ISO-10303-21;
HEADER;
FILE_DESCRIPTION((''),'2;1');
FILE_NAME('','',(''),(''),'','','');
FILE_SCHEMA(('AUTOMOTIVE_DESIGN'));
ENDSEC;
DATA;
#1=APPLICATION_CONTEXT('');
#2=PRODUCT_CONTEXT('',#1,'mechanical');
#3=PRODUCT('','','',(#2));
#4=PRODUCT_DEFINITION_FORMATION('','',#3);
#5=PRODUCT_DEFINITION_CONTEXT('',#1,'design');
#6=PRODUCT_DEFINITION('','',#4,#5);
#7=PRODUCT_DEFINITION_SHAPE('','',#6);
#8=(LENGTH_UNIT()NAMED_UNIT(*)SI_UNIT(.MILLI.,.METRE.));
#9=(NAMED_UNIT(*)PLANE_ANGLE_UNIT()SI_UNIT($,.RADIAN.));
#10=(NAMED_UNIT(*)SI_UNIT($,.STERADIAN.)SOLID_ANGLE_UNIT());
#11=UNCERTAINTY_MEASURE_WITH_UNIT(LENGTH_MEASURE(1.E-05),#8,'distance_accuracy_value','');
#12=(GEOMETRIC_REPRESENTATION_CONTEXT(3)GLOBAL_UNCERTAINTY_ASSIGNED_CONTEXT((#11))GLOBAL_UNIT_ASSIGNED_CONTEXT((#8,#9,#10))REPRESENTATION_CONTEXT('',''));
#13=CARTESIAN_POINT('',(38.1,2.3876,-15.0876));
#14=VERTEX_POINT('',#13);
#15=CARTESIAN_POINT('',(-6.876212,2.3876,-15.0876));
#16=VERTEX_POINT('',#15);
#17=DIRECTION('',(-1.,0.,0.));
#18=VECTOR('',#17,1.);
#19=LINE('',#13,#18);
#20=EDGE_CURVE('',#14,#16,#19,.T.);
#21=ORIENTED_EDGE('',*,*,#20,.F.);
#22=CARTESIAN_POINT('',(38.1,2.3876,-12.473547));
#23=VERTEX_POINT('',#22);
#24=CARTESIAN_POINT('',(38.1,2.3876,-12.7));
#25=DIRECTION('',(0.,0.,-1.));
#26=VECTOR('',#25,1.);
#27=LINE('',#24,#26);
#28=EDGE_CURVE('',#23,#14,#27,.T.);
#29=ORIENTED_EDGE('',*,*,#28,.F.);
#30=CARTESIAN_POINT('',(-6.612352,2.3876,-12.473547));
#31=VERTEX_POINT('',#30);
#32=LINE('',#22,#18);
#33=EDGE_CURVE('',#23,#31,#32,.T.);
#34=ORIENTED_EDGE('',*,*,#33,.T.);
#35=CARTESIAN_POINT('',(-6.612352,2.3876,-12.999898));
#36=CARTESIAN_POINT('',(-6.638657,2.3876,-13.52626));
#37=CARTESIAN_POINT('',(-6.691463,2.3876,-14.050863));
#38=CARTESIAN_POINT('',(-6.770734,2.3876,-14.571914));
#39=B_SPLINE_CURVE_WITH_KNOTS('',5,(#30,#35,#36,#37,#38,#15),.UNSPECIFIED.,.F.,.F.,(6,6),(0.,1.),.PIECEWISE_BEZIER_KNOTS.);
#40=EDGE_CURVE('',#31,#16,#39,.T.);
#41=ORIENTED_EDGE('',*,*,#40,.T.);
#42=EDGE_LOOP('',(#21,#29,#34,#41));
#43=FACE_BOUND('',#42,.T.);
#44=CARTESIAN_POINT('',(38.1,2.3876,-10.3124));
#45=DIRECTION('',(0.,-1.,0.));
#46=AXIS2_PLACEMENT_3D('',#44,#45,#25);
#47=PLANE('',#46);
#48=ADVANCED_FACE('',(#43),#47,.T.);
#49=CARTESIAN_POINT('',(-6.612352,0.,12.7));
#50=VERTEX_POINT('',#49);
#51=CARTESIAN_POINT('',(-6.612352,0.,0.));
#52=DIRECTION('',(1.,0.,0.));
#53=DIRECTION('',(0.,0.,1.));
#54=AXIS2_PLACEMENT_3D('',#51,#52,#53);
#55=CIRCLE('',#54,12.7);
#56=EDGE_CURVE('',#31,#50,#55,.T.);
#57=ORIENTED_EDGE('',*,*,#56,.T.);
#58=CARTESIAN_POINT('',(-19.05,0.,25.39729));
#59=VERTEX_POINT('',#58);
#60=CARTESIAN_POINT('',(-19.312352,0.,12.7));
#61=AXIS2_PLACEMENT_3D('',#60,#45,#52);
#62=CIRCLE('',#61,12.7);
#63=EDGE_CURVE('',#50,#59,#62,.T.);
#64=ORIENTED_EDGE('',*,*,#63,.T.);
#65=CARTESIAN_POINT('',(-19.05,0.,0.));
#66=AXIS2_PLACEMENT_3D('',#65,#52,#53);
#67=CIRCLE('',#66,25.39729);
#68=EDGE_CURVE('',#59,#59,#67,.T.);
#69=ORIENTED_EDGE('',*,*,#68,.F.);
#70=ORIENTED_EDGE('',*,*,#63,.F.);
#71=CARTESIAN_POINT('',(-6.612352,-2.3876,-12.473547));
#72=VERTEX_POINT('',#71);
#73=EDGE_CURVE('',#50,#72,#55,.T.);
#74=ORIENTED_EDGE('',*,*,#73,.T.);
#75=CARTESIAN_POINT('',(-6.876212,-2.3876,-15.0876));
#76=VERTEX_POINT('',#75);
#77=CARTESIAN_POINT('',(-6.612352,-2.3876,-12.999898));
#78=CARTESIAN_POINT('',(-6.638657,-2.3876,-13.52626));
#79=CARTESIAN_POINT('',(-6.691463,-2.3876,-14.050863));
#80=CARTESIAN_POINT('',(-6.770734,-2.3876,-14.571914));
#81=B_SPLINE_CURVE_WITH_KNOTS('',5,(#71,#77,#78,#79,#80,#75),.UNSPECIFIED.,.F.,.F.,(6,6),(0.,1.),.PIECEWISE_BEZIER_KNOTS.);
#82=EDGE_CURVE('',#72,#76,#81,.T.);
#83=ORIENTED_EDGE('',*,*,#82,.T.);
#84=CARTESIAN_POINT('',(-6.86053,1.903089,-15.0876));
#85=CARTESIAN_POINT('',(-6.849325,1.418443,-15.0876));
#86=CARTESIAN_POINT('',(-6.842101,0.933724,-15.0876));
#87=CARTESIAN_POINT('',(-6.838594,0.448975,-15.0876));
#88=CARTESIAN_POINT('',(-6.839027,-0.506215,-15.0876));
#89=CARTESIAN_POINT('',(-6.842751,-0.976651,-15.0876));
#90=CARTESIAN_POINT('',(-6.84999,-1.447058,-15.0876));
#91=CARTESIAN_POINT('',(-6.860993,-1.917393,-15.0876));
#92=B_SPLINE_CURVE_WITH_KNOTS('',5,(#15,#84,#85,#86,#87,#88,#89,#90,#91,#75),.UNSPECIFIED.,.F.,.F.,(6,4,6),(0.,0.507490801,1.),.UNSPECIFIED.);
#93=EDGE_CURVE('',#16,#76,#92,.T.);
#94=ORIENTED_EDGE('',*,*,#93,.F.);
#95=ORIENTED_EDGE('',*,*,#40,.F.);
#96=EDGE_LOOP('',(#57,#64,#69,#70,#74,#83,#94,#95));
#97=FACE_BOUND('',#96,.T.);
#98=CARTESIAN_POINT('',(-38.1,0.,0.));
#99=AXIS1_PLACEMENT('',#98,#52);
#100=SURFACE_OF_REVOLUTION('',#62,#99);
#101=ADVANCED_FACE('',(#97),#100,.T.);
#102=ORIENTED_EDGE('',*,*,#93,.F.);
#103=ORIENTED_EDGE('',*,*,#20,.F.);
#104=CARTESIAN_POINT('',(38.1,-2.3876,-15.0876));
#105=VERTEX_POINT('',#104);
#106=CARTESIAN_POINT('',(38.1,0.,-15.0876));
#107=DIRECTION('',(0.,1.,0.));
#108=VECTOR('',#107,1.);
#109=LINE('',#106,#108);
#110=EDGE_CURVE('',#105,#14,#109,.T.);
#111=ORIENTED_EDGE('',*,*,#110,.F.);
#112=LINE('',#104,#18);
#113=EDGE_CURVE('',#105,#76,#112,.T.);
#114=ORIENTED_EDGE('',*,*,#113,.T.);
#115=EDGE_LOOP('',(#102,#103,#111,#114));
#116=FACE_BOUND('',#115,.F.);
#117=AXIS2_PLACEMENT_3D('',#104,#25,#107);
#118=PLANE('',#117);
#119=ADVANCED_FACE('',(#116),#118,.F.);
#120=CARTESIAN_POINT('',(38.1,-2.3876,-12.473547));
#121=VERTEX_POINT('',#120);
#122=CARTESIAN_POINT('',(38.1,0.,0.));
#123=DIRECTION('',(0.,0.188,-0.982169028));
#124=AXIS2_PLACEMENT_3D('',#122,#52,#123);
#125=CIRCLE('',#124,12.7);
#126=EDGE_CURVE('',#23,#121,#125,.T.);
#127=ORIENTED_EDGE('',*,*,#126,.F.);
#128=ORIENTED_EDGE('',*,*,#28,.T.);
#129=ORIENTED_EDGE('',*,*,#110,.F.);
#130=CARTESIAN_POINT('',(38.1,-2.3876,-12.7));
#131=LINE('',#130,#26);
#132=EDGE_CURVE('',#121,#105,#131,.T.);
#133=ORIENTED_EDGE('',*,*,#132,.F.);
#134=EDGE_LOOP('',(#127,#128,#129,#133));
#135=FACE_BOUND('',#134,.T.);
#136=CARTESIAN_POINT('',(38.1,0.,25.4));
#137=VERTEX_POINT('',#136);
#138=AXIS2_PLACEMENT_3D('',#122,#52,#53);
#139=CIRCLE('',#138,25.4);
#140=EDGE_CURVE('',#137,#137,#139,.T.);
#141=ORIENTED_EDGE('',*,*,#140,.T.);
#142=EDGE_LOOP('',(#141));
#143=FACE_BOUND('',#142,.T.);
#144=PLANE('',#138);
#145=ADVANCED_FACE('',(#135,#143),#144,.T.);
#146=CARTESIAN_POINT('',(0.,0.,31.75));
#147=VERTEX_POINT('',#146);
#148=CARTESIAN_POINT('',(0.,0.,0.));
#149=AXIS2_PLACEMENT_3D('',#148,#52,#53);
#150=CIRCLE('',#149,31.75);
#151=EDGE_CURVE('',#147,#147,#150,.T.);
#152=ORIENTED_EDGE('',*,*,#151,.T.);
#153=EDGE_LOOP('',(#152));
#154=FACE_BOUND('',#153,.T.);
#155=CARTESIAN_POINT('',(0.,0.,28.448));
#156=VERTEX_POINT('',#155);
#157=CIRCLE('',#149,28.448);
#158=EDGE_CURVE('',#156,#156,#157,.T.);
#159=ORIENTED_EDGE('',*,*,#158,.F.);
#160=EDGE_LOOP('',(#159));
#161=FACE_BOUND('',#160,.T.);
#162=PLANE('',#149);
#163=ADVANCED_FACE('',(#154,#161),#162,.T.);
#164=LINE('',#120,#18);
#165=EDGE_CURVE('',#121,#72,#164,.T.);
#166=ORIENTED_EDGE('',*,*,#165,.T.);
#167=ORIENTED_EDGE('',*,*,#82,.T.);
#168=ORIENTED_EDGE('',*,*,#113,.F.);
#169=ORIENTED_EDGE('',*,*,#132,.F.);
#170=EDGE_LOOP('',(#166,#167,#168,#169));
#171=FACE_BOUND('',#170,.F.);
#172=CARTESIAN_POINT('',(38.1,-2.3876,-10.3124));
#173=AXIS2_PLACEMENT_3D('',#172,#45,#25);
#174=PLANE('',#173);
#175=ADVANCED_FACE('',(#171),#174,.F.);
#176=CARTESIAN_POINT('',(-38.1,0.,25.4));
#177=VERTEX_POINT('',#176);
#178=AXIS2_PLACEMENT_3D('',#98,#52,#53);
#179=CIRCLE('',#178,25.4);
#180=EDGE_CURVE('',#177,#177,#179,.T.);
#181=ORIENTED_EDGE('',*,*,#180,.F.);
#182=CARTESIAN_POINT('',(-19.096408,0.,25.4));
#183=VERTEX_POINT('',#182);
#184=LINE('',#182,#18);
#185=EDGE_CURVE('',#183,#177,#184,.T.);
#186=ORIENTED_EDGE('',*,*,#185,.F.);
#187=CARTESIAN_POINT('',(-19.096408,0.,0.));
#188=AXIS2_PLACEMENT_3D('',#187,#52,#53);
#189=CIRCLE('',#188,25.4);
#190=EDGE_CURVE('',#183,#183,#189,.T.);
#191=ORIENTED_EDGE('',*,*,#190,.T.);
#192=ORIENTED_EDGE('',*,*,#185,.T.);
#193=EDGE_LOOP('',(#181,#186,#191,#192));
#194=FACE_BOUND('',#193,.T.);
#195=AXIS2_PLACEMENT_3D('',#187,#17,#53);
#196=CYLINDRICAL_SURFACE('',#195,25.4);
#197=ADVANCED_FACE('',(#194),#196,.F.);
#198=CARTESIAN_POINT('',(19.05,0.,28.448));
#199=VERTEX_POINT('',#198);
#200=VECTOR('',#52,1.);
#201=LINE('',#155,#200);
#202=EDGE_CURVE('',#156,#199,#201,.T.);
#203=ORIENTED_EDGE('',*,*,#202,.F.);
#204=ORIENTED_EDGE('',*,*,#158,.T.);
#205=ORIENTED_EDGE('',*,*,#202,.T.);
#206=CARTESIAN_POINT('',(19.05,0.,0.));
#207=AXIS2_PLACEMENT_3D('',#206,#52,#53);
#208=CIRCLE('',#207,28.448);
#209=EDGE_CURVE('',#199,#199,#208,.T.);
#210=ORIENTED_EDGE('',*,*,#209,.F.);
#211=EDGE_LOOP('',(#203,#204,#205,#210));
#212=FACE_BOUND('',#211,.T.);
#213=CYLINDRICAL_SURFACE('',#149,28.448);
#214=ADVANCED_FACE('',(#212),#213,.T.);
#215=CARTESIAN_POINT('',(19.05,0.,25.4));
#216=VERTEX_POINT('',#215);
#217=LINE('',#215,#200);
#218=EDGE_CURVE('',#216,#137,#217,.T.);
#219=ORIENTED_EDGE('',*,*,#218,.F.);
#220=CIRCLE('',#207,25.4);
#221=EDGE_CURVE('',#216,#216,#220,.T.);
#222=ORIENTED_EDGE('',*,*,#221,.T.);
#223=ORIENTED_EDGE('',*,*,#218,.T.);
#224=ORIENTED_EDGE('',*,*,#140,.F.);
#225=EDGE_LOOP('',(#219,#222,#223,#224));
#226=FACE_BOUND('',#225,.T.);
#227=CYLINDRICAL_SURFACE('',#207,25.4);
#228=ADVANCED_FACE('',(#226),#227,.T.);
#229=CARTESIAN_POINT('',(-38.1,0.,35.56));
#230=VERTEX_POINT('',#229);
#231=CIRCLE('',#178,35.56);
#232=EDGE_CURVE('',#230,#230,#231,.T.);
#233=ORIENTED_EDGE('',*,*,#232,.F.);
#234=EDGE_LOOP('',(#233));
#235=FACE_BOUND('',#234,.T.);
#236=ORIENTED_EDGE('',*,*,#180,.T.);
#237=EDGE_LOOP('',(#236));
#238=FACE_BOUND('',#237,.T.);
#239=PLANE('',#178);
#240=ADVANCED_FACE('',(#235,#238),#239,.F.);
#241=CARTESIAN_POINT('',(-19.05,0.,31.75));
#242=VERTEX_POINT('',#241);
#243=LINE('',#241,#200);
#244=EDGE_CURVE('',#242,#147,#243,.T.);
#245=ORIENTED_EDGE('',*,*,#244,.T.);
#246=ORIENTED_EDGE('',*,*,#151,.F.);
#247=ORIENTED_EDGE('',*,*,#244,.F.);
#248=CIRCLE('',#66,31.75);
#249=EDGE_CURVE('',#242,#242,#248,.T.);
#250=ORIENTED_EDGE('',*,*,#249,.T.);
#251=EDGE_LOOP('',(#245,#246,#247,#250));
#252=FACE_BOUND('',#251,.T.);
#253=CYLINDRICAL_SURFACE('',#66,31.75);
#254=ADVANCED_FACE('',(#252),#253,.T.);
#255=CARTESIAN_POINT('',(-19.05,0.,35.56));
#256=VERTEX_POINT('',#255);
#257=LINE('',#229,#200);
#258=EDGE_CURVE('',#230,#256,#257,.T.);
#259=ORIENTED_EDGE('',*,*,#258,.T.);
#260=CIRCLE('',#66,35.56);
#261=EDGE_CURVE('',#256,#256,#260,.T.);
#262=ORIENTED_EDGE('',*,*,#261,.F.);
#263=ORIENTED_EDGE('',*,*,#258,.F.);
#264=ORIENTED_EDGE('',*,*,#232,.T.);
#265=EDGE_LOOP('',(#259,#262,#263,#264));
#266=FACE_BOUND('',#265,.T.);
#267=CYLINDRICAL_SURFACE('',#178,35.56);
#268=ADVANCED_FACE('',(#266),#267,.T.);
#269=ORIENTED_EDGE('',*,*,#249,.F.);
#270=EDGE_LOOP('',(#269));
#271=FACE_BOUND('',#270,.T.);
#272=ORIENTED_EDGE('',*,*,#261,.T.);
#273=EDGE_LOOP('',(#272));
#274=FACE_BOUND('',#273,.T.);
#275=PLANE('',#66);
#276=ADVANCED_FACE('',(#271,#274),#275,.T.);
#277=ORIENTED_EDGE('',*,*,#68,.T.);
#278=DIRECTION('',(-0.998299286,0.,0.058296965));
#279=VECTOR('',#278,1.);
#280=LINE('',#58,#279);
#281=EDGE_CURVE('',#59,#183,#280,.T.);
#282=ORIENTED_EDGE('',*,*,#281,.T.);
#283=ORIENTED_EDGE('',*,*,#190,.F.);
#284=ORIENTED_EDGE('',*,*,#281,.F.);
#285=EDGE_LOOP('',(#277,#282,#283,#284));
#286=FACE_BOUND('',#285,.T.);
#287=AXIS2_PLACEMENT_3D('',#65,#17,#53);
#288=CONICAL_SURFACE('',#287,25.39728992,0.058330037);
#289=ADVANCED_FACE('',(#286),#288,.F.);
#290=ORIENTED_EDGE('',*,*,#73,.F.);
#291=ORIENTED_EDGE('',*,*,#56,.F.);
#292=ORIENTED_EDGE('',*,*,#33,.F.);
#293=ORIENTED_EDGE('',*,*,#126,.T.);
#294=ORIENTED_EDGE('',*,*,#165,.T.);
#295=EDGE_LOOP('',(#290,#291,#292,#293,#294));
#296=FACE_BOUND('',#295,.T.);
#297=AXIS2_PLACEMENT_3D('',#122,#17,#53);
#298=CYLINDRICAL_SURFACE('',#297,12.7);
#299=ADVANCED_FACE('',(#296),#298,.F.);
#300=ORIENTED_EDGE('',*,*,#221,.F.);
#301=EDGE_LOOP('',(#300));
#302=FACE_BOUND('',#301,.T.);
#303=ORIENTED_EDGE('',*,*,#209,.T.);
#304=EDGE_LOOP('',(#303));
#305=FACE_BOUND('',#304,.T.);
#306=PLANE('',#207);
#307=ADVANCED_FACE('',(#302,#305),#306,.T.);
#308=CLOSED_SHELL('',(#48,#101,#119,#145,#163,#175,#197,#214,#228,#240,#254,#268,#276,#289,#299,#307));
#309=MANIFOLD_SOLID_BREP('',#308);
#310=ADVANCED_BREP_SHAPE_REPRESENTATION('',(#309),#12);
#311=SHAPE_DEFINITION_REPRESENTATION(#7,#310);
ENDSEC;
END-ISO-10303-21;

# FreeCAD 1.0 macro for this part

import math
import FreeCAD as App
import Part
import Sketcher
Q = App.Units.Quantity

doc = App.newDocument("Part")
body = doc.addObject("PartDesign::Body", "Body")

sketch1 = doc.addObject("Sketcher::SketchObject", "Sketch")
body.addObject(sketch1)
sketch1.AttachmentSupport = (doc.XY_Plane, [""])
sketch1.MapMode = "FlatFace"
sketch1.addGeometry(Part.LineSegment(App.Vector(-19.05, 35.56, 0), App.Vector(-38.1, 35.56, 0)), False)
sketch1.addGeometry(Part.LineSegment(App.Vector(-38.1, 35.56, 0), App.Vector(-38.1, 25.4, 0)), False)
sketch1.addGeometry(Part.LineSegment(App.Vector(-38.1, 25.4, 0), App.Vector(-19.096408, 25.4, 0)), False)
sketch1.addGeometry(Part.LineSegment(App.Vector(-19.096408, 25.4, 0), App.Vector(-19.05, 25.39729, 0)), False)
sketch1.addGeometry(Part.ArcOfCircle(Part.Circle(App.Vector(-19.312352, 12.7, 0), App.Vector(0, 0, 1), 12.7), math.radians(0), math.radians(88.816319)), False)
sketch1.addGeometry(Part.LineSegment(App.Vector(-6.612352, 12.7, 0), App.Vector(38.1, 12.7, 0)), False)
sketch1.addGeometry(Part.LineSegment(App.Vector(38.1, 12.7, 0), App.Vector(38.1, 25.4, 0)), False)
sketch1.addGeometry(Part.LineSegment(App.Vector(38.1, 25.4, 0), App.Vector(19.05, 25.4, 0)), False)
sketch1.addGeometry(Part.LineSegment(App.Vector(19.05, 25.4, 0), App.Vector(19.05, 28.448, 0)), False)
sketch1.addGeometry(Part.LineSegment(App.Vector(19.05, 28.448, 0), App.Vector(0, 28.448, 0)), False)
sketch1.addGeometry(Part.LineSegment(App.Vector(0, 28.448, 0), App.Vector(0, 31.75, 0)), False)
sketch1.addGeometry(Part.LineSegment(App.Vector(0, 31.75, 0), App.Vector(-19.05, 31.75, 0)), False)
sketch1.addGeometry(Part.LineSegment(App.Vector(-19.05, 31.75, 0), App.Vector(-19.05, 35.56, 0)), False)
sketch1.addConstraint(Sketcher.Constraint("Coincident", 0, 2, 1, 1))
sketch1.addConstraint(Sketcher.Constraint("Coincident", 1, 2, 2, 1))
sketch1.addConstraint(Sketcher.Constraint("Coincident", 2, 2, 3, 1))
sketch1.addConstraint(Sketcher.Constraint("Coincident", 3, 2, 4, 2))
sketch1.addConstraint(Sketcher.Constraint("Coincident", 4, 1, 5, 1))
sketch1.addConstraint(Sketcher.Constraint("Coincident", 5, 2, 6, 1))
sketch1.addConstraint(Sketcher.Constraint("Coincident", 6, 2, 7, 1))
sketch1.addConstraint(Sketcher.Constraint("Coincident", 7, 2, 8, 1))
sketch1.addConstraint(Sketcher.Constraint("Coincident", 8, 2, 9, 1))
sketch1.addConstraint(Sketcher.Constraint("Coincident", 9, 2, 10, 1))
sketch1.addConstraint(Sketcher.Constraint("Coincident", 10, 2, 11, 1))
sketch1.addConstraint(Sketcher.Constraint("Coincident", 11, 2, 12, 1))
sketch1.addConstraint(Sketcher.Constraint("Coincident", 12, 2, 0, 1))
sketch1.addConstraint(Sketcher.Constraint("Horizontal", 0))
sketch1.addConstraint(Sketcher.Constraint("Vertical", 1))
sketch1.addConstraint(Sketcher.Constraint("Horizontal", 2))
sketch1.addConstraint(Sketcher.Constraint("Horizontal", 5))
sketch1.addConstraint(Sketcher.Constraint("Vertical", 6))
sketch1.addConstraint(Sketcher.Constraint("Horizontal", 7))
sketch1.addConstraint(Sketcher.Constraint("Vertical", 8))
sketch1.addConstraint(Sketcher.Constraint("Horizontal", 9))
sketch1.addConstraint(Sketcher.Constraint("Vertical", 10))
sketch1.addConstraint(Sketcher.Constraint("Horizontal", 11))
sketch1.addConstraint(Sketcher.Constraint("Vertical", 12))
sketch1.addConstraint(Sketcher.Constraint("Symmetric", 1, 2, 6, 2, -2))
sketch1.addConstraint(Sketcher.Constraint("PointOnObject", 9, 2, -2))
sketch1.addConstraint(Sketcher.Constraint("Vertical", 3, 2, 11, 2))
sketch1.addConstraint(Sketcher.Constraint("Equal", 0, 7))
sketch1.addConstraint(Sketcher.Constraint("Equal", 7, 9))
sketch1.addConstraint(Sketcher.Constraint("Radius", 4, Q("0.5 in")))
sketch1.addConstraint(Sketcher.Constraint("DistanceY", 1, 2, 1, 1, Q("0.4 in")))
sketch1.addConstraint(Sketcher.Constraint("DistanceY", 6, 1, 6, 2, Q("0.5 in")))
sketch1.addConstraint(Sketcher.Constraint("DistanceY", -1, 1, 1, 2, Q("1 in")))
sketch1.addConstraint(Sketcher.Constraint("DistanceX", 1, 2, 5, 2, Q("3 in")))
sketch1.addConstraint(Sketcher.Constraint("DistanceY", 8, 1, 8, 2, Q("0.12 in")))
sketch1.addConstraint(Sketcher.Constraint("DistanceY", 10, 1, 10, 2, Q("0.13 in")))
sketch1.addConstraint(Sketcher.Constraint("DistanceY", -1, 1, 4, 3, Q("0.5 in")))
sketch1.addConstraint(Sketcher.Constraint("DistanceX", 2, 1, 2, 2, Q("19.003592 mm")))
sketch1.addConstraint(Sketcher.Constraint("DistanceX", 5, 1, 5, 2, Q("44.712352 mm")))
revolution = doc.addObject("PartDesign::Revolution", "Revolution")
body.addObject(revolution)
revolution.Profile = sketch1
revolution.ReferenceAxis = (sketch1, ["H_Axis"])
revolution.Angle = 360

sketch2 = doc.addObject("Sketcher::SketchObject", "Sketch001")
body.addObject(sketch2)
sketch2.AttachmentSupport = (doc.YZ_Plane, [""])
sketch2.MapMode = "FlatFace"
sketch2.AttachmentOffset = App.Placement(App.Vector(0, 0, 1.5 * 25.4), App.Rotation())
sketch2.addGeometry(Part.LineSegment(App.Vector(2.3876, -10.3124, 0), App.Vector(-2.3876, -10.3124, 0)), False)
sketch2.addGeometry(Part.LineSegment(App.Vector(-2.3876, -10.3124, 0), App.Vector(-2.3876, -15.0876, 0)), False)
sketch2.addGeometry(Part.LineSegment(App.Vector(-2.3876, -15.0876, 0), App.Vector(2.3876, -15.0876, 0)), False)
sketch2.addGeometry(Part.LineSegment(App.Vector(2.3876, -15.0876, 0), App.Vector(2.3876, -10.3124, 0)), False)
sketch2.addConstraint(Sketcher.Constraint("Coincident", 0, 2, 1, 1))
sketch2.addConstraint(Sketcher.Constraint("Coincident", 1, 2, 2, 1))
sketch2.addConstraint(Sketcher.Constraint("Coincident", 2, 2, 3, 1))
sketch2.addConstraint(Sketcher.Constraint("Coincident", 3, 2, 0, 1))
sketch2.addConstraint(Sketcher.Constraint("Horizontal", 0))
sketch2.addConstraint(Sketcher.Constraint("Vertical", 1))
sketch2.addConstraint(Sketcher.Constraint("Horizontal", 2))
sketch2.addConstraint(Sketcher.Constraint("Vertical", 3))
sketch2.addConstraint(Sketcher.Constraint("Equal", 2, 1))
sketch2.addConstraint(Sketcher.Constraint("DistanceX", 0, 2, 0, 1, Q("0.188 in")))
sketch2.addConstraint(Sketcher.Constraint("DistanceX", 0, 2, -1, 1, Q("0.094 in")))
sketch2.addConstraint(Sketcher.Constraint("DistanceY", 0, 2, -1, 1, Q("0.406 in")))
pocket1 = doc.addObject("PartDesign::Pocket", "Pocket")
body.addObject(pocket1)
pocket1.Profile = sketch2
pocket1.Type = "ThroughAll"

doc.recompute()
